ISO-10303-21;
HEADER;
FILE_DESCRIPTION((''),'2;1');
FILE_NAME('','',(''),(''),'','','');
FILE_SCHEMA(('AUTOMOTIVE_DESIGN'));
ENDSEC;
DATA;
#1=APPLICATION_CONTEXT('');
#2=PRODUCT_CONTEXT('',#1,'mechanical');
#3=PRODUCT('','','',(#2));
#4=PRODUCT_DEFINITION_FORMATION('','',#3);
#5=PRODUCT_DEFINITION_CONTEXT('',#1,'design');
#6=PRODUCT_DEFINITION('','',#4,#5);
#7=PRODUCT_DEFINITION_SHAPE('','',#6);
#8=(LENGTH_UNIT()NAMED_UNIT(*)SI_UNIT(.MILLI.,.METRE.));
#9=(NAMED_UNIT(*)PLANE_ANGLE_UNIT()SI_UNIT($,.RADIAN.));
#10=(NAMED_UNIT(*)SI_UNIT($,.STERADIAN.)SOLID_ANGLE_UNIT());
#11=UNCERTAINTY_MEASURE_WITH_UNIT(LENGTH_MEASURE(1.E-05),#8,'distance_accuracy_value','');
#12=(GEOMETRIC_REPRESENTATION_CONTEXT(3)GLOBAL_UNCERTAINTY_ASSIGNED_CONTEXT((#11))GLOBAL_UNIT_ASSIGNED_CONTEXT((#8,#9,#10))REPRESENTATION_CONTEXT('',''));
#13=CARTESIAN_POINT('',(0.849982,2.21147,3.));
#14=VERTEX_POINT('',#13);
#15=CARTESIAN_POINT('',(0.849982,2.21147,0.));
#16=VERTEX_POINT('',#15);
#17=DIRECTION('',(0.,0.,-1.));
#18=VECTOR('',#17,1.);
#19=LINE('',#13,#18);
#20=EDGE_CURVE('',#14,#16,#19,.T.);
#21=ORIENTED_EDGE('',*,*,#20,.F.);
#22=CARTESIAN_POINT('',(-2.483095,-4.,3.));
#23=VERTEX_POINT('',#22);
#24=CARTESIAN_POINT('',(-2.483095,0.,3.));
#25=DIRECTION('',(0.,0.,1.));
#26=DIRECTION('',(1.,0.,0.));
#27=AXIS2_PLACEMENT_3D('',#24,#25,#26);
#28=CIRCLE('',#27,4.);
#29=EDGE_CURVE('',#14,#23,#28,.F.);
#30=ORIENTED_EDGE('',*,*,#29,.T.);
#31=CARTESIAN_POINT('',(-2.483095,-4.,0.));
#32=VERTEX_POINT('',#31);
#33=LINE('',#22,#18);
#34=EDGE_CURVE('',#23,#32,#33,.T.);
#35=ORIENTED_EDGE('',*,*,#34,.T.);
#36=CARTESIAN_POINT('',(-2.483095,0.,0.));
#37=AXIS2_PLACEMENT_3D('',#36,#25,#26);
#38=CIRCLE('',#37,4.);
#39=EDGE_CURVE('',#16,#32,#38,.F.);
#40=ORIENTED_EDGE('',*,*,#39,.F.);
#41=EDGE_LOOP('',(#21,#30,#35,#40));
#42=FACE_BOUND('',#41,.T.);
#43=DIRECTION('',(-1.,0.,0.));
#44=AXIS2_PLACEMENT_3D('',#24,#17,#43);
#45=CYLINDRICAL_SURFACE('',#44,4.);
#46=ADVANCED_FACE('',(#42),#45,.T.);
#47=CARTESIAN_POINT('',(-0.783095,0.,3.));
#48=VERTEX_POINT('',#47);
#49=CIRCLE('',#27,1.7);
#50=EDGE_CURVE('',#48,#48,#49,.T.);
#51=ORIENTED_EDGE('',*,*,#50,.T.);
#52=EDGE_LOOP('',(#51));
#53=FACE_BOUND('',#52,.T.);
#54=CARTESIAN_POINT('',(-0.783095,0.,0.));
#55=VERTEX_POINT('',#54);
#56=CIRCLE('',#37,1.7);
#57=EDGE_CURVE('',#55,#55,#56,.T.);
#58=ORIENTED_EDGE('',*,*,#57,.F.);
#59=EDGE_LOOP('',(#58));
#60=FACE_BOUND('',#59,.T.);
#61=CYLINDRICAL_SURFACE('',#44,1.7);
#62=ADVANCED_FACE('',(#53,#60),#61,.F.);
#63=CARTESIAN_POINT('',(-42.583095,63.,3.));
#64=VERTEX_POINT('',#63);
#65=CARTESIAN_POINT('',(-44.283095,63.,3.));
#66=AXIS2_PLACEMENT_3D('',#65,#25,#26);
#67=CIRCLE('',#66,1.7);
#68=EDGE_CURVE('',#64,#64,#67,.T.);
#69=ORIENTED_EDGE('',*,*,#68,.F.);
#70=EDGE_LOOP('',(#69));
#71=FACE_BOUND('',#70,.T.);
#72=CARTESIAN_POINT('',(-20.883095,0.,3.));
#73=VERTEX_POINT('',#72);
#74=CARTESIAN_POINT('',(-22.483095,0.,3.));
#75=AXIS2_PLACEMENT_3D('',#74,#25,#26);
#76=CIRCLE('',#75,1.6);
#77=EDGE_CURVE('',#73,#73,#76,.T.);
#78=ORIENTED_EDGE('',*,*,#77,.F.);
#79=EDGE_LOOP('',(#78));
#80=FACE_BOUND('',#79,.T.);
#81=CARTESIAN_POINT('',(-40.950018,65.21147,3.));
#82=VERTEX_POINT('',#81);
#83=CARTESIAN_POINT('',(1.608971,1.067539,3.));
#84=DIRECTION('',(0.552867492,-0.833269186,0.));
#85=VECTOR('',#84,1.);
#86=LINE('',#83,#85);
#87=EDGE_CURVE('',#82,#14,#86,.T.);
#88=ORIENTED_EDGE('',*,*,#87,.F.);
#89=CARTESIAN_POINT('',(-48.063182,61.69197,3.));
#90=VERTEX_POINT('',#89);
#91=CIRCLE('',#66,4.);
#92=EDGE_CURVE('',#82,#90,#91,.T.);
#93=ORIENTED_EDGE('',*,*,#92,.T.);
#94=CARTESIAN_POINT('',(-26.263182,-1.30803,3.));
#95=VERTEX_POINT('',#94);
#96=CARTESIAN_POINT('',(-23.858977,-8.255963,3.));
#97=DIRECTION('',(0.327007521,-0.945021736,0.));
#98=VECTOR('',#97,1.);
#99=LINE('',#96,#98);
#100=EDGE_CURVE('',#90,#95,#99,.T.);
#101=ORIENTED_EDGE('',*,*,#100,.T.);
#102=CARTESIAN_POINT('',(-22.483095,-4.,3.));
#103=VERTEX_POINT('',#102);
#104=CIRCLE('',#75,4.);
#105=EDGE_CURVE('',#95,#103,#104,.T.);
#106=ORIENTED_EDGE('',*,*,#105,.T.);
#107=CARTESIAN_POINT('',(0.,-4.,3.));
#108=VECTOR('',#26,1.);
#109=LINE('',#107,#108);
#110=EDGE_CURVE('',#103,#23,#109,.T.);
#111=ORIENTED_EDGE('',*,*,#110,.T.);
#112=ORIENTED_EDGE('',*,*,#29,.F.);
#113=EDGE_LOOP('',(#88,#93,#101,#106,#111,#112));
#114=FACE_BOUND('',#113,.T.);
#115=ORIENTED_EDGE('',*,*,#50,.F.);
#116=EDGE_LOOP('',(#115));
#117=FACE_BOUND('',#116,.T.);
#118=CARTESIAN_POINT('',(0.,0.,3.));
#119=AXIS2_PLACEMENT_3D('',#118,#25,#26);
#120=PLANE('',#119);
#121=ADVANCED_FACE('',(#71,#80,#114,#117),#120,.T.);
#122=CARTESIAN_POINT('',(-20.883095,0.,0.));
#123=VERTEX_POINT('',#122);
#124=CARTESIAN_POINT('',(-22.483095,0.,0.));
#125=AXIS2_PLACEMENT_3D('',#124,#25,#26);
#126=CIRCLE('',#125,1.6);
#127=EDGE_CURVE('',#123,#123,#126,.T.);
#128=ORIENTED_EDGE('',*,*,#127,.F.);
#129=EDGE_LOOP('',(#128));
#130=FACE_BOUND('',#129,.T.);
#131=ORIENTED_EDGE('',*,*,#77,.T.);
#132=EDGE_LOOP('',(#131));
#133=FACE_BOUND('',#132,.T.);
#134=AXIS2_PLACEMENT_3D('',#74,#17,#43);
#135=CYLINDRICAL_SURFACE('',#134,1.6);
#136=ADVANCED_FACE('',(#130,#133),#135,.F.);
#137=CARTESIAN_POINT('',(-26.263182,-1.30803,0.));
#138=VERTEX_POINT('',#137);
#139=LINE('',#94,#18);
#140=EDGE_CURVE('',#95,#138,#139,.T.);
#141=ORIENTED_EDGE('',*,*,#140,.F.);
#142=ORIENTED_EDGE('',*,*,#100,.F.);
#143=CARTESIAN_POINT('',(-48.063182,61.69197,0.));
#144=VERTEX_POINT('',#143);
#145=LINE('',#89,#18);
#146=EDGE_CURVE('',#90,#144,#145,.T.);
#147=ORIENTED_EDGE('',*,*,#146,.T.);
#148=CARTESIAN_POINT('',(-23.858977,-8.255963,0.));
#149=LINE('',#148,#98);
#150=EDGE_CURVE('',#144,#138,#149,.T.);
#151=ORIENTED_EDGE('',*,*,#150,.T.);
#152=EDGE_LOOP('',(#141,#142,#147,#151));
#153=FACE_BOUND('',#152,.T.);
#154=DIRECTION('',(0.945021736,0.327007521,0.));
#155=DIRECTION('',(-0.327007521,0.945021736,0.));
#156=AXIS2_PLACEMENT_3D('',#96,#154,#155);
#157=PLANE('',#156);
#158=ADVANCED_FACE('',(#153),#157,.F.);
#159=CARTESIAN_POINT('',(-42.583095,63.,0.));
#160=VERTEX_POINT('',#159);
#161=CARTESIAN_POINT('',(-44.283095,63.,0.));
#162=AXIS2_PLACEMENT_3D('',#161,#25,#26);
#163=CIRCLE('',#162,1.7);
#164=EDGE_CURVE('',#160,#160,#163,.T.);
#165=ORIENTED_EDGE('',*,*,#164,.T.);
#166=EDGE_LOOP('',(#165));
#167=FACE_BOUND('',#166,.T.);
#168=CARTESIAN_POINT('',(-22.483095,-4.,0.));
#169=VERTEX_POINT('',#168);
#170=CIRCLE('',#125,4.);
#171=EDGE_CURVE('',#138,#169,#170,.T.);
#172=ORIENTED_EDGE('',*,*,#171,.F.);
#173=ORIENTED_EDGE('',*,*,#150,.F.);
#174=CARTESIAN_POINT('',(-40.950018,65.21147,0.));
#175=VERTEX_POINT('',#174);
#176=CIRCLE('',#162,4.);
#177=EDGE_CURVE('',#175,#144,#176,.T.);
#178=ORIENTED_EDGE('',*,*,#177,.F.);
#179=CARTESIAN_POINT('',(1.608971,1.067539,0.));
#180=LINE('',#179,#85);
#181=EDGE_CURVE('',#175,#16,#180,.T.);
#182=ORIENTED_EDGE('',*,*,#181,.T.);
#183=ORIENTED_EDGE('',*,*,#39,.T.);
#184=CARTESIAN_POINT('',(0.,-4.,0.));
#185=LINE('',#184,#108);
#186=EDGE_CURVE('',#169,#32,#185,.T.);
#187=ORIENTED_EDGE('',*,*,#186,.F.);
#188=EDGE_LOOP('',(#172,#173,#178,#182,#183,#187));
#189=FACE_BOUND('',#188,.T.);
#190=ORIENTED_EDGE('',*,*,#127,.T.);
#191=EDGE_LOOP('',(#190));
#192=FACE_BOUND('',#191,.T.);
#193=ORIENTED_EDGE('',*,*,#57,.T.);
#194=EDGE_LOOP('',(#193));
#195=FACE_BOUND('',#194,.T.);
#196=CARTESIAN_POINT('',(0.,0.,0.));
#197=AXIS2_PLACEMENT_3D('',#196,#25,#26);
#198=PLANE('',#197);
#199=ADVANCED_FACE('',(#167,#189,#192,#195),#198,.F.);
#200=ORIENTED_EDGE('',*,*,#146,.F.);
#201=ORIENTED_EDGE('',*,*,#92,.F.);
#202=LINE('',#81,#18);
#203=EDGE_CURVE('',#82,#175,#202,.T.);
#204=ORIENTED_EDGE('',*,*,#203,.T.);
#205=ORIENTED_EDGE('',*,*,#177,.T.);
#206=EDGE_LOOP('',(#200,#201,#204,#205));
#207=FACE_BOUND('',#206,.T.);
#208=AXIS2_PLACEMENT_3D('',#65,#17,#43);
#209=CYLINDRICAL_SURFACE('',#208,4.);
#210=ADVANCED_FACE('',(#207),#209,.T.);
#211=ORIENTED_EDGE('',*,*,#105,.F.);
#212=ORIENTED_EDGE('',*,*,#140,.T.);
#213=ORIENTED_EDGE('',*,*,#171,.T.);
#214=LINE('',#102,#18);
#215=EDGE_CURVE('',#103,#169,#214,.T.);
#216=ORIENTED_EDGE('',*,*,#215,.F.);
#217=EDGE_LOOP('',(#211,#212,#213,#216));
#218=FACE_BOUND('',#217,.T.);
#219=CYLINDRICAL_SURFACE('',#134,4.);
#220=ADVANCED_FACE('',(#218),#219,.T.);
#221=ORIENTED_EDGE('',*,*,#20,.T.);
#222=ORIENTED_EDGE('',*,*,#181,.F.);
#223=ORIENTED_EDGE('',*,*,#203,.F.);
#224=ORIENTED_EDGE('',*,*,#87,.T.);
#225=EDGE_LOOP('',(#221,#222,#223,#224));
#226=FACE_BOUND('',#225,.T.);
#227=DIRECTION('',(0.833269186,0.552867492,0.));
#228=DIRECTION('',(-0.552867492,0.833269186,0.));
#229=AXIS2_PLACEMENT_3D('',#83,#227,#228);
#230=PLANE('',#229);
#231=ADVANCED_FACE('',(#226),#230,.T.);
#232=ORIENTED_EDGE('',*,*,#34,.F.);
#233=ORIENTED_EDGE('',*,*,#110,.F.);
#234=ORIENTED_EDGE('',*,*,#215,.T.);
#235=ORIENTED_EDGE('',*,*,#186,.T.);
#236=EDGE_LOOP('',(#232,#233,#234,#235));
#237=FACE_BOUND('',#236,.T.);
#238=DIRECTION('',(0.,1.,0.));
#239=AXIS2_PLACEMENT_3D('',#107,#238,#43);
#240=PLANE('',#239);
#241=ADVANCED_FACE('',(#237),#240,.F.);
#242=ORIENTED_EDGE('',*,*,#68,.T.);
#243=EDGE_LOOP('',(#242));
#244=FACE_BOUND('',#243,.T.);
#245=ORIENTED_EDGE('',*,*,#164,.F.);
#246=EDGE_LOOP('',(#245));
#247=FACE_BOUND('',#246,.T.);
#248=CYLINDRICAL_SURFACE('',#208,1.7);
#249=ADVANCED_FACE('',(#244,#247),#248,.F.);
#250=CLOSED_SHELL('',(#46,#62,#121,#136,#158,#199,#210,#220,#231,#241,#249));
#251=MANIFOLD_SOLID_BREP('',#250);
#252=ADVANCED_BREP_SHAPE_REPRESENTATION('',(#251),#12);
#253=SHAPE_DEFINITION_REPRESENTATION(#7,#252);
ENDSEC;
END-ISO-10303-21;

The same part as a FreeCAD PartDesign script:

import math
import FreeCAD as App
import Part
import Sketcher

V = App.Vector
Q = App.Units.Quantity

doc = App.newDocument("Part")
body = doc.addObject("PartDesign::Body", "Body")

sketch1 = body.newObject("Sketcher::SketchObject", "Sketch")
sketch1.AttachmentSupport = (doc.getObject("XY_Plane"), [""])
sketch1.MapMode = "FlatFace"
sketch1.addGeometry([
    Part.ArcOfCircle(Part.Circle(V(-2.5, 0, 0), V(0, 0, 1), 4), math.radians(-90), math.radians(34)),
    Part.LineSegment(V(0.8, 2.2, 0), V(-41, 65.2, 0)),
    Part.ArcOfCircle(Part.Circle(V(-44.3, 63, 0), V(0, 0, 1), 4), math.radians(34), math.radians(199)),
    Part.LineSegment(V(-48.1, 61.7, 0), V(-26.3, -1.3, 0)),
    Part.ArcOfCircle(Part.Circle(V(-22.5, 0, 0), V(0, 0, 1), 4), math.radians(-161), math.radians(-90)),
    Part.LineSegment(V(-22.5, -4, 0), V(-2.5, -4, 0)),
    Part.Circle(V(-22.5, 0, 0), V(0, 0, 1), 1.6),
    Part.Circle(V(-2.5, 0, 0), V(0, 0, 1), 1.7),
    Part.Circle(V(-44.3, 63, 0), V(0, 0, 1), 1.7),
], False)
sketch1.addConstraint([
    Sketcher.Constraint("Tangent", 0, 2, 1, 1),
    Sketcher.Constraint("Tangent", 1, 2, 2, 1),
    Sketcher.Constraint("Tangent", 2, 2, 3, 1),
    Sketcher.Constraint("Tangent", 3, 2, 4, 1),
    Sketcher.Constraint("Tangent", 4, 2, 5, 1),
    Sketcher.Constraint("Tangent", 5, 2, 0, 1),
    Sketcher.Constraint("Horizontal", 5),
    Sketcher.Constraint("Coincident", 6, 3, 4, 3),
    Sketcher.Constraint("Coincident", 7, 3, 0, 3),
    Sketcher.Constraint("Coincident", 8, 3, 2, 3),
    Sketcher.Constraint("Equal", 0, 2),
    Sketcher.Constraint("Equal", 2, 4),
    Sketcher.Constraint("Equal", 7, 8),
    Sketcher.Constraint("PointOnObject", 0, 3, -1),
    Sketcher.Constraint("Radius", 0, Q("4 mm")),
    Sketcher.Constraint("Diameter", 6, Q("3.2 mm")),
    Sketcher.Constraint("Diameter", 7, Q("3.4 mm")),
    Sketcher.Constraint("DistanceX", 5, 1, 5, 2, Q("20 mm")),
    Sketcher.Constraint("DistanceY", -1, 1, 2, 3, Q("63 mm")),
    Sketcher.Constraint("DistanceX", 2, 3, 0, 3, Q("41.8 mm")),
    Sketcher.Constraint("DistanceX", -1, 1, 0, 2, Q("0.849982 mm")),
])
pad1 = body.newObject("PartDesign::Pad", "Pad")
pad1.Profile = sketch1
pad1.Length = 3

doc.recompute()
